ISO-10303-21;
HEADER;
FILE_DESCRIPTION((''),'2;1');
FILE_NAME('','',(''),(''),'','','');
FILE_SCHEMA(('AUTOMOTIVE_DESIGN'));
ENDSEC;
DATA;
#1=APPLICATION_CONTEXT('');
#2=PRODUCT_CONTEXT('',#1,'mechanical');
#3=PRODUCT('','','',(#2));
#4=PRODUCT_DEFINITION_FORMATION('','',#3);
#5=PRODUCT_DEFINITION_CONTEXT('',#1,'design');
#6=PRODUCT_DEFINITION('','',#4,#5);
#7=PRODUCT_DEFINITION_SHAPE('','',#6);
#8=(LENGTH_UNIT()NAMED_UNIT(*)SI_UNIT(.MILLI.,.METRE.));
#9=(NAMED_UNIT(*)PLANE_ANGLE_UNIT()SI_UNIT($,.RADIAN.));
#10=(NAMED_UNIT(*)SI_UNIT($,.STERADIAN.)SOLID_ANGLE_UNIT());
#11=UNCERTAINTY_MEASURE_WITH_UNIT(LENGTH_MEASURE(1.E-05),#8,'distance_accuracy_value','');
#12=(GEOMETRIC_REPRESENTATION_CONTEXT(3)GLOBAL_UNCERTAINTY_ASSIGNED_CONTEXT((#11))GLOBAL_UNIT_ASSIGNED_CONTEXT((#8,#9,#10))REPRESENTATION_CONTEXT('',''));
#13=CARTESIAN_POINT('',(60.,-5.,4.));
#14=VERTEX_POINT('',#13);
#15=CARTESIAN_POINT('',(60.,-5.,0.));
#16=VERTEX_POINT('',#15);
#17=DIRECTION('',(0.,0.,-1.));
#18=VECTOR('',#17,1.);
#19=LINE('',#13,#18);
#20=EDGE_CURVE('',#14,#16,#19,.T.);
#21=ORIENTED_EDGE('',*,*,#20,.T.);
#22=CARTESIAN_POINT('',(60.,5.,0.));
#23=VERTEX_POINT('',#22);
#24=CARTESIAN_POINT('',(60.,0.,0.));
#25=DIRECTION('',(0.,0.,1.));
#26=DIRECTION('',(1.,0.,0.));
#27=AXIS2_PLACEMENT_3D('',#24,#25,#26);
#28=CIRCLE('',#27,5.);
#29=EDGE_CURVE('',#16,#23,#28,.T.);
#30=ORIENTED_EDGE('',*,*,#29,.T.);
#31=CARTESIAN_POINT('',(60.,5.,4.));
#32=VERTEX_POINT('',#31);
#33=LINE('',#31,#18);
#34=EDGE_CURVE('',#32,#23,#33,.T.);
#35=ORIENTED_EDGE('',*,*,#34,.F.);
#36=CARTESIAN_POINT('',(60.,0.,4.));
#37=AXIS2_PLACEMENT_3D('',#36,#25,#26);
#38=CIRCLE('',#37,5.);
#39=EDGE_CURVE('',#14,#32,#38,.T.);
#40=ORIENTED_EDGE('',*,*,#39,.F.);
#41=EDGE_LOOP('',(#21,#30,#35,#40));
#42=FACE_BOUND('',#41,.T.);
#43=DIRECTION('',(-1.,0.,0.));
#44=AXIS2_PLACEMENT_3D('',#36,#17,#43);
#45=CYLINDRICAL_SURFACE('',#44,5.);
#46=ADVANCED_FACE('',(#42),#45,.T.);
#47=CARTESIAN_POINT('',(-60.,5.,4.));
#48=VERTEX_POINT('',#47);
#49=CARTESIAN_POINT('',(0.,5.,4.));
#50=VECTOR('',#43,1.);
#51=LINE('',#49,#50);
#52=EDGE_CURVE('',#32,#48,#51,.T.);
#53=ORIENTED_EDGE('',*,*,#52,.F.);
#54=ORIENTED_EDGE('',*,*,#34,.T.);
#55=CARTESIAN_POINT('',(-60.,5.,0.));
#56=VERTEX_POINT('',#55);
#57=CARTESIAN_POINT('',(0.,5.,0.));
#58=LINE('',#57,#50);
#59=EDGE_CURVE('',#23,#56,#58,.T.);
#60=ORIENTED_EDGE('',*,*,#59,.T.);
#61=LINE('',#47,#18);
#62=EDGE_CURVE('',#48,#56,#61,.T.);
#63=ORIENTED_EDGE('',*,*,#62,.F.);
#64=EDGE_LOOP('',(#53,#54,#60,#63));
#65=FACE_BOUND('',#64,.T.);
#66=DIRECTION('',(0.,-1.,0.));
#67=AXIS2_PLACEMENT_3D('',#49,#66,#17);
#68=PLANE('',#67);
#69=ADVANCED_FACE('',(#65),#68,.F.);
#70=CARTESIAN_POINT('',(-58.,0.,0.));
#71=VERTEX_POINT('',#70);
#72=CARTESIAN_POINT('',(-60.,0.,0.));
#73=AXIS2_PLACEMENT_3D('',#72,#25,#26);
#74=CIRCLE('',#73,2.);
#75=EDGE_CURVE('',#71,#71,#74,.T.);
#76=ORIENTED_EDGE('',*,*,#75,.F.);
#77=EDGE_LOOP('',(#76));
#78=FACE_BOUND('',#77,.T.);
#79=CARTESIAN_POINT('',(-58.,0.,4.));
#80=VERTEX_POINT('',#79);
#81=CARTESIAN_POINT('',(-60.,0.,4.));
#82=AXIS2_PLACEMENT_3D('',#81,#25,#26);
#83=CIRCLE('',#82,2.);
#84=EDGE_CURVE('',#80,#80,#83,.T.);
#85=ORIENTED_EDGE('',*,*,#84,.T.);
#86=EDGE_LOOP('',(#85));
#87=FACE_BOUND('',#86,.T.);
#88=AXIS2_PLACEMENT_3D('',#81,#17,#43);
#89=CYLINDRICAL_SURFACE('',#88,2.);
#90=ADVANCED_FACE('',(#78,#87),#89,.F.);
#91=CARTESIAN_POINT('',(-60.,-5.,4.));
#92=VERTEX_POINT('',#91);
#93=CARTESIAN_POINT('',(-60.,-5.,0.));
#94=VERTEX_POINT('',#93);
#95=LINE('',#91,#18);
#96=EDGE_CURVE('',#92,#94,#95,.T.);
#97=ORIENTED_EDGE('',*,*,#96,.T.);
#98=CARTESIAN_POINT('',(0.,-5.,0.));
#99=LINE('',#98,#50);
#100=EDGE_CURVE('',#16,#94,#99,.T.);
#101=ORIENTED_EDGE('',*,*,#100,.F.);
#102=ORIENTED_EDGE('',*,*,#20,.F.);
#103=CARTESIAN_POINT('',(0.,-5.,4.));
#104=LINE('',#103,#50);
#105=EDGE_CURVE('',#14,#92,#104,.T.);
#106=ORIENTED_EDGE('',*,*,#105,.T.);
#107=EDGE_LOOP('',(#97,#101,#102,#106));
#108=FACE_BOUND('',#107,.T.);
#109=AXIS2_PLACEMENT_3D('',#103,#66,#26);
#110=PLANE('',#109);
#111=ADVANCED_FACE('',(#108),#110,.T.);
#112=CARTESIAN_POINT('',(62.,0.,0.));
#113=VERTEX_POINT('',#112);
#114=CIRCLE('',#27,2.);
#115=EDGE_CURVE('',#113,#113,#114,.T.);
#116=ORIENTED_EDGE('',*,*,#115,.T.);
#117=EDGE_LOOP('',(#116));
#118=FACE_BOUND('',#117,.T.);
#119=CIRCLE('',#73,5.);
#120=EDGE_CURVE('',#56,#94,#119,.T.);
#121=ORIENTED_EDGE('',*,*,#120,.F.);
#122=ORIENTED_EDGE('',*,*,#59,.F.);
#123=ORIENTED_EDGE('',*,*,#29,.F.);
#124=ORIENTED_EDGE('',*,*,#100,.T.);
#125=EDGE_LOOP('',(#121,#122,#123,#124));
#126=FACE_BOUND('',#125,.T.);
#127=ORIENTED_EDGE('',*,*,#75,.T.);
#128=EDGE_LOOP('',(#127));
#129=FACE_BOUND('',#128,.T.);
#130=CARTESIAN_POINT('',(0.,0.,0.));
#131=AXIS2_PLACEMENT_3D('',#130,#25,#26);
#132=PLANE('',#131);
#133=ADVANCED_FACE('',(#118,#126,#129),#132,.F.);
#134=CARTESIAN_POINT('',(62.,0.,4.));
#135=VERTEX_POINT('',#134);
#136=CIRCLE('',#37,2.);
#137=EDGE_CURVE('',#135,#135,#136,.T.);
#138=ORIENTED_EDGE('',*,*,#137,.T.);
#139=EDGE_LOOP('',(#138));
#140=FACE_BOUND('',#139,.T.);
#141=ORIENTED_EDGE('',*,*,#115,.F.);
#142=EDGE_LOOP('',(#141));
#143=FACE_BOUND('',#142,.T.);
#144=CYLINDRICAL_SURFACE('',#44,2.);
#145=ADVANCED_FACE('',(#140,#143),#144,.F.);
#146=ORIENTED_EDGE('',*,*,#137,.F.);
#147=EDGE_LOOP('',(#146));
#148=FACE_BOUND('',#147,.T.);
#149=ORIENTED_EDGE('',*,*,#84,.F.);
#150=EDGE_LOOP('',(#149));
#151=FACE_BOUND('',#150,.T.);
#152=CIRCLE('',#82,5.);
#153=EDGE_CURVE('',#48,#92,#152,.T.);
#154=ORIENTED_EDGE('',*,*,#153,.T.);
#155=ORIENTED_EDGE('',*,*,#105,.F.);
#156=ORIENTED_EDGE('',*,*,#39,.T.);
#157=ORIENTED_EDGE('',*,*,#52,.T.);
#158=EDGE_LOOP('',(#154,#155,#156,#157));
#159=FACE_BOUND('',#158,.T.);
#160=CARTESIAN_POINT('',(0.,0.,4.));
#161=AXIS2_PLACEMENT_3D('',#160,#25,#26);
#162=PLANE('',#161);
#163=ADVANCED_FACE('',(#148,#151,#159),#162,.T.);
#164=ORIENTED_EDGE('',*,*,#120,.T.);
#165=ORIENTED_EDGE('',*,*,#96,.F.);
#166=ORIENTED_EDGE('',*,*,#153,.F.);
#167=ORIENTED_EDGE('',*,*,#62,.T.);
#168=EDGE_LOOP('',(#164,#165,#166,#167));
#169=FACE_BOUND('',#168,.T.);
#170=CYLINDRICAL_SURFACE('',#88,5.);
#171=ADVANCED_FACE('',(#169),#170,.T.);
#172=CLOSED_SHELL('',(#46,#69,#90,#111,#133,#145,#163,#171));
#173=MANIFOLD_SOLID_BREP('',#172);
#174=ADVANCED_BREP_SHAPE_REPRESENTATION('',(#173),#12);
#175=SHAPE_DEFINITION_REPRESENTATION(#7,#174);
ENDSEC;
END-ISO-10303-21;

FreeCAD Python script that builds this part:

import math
import FreeCAD as App
import Part
import Sketcher

V = App.Vector
Q = App.Units.Quantity

doc = App.newDocument("Part")
body = doc.addObject("PartDesign::Body", "Body")

# Sketch on XY plane
sketch1 = body.newObject("Sketcher::SketchObject", "Sketch")
sketch1.AttachmentSupport = (doc.getObject("XY_Plane"), [""])
sketch1.MapMode = "FlatFace"
sketch1.addGeometry(Part.LineSegment(V(-60, -5, 0), V(60, -5, 0)), False)
sketch1.addGeometry(Part.ArcOfCircle(Part.Circle(V(60, 0, 0), V(0, 0, 1), 5), math.radians(-90), math.radians(90)), False)
sketch1.addGeometry(Part.LineSegment(V(60, 5, 0), V(-60, 5, 0)), False)
sketch1.addGeometry(Part.ArcOfCircle(Part.Circle(V(-60, 0, 0), V(0, 0, 1), 5), math.radians(90), math.radians(270)), False)
sketch1.addGeometry(Part.Circle(V(-60, 0, 0), V(0, 0, 1), 2), False)
sketch1.addGeometry(Part.Circle(V(60, 0, 0), V(0, 0, 1), 2), False)
sketch1.addConstraint(Sketcher.Constraint("Tangent", 0, 2, 1, 1))
sketch1.addConstraint(Sketcher.Constraint("Tangent", 1, 2, 2, 1))
sketch1.addConstraint(Sketcher.Constraint("Tangent", 2, 2, 3, 1))
sketch1.addConstraint(Sketcher.Constraint("Tangent", 3, 2, 0, 1))
sketch1.addConstraint(Sketcher.Constraint("Horizontal", 0))
sketch1.addConstraint(Sketcher.Constraint("Horizontal", 2))
sketch1.addConstraint(Sketcher.Constraint("Coincident", 4, 3, 3, 3))
sketch1.addConstraint(Sketcher.Constraint("Coincident", 5, 3, 1, 3))
sketch1.addConstraint(Sketcher.Constraint("Equal", 4, 5))
sketch1.addConstraint(Sketcher.Constraint("Symmetric", 1, 3, 3, 3, -1, 1))
sketch1.addConstraint(Sketcher.Constraint("Diameter", 4, Q("4 mm")))
sketch1.addConstraint(Sketcher.Constraint("Radius", 1, Q("5 mm")))
sketch1.addConstraint(Sketcher.Constraint("DistanceX", 0, 1, 0, 2, Q("120 mm")))
pad1 = body.newObject("PartDesign::Pad", "Pad")
pad1.Profile = sketch1
pad1.Length = 4

doc.recompute()
